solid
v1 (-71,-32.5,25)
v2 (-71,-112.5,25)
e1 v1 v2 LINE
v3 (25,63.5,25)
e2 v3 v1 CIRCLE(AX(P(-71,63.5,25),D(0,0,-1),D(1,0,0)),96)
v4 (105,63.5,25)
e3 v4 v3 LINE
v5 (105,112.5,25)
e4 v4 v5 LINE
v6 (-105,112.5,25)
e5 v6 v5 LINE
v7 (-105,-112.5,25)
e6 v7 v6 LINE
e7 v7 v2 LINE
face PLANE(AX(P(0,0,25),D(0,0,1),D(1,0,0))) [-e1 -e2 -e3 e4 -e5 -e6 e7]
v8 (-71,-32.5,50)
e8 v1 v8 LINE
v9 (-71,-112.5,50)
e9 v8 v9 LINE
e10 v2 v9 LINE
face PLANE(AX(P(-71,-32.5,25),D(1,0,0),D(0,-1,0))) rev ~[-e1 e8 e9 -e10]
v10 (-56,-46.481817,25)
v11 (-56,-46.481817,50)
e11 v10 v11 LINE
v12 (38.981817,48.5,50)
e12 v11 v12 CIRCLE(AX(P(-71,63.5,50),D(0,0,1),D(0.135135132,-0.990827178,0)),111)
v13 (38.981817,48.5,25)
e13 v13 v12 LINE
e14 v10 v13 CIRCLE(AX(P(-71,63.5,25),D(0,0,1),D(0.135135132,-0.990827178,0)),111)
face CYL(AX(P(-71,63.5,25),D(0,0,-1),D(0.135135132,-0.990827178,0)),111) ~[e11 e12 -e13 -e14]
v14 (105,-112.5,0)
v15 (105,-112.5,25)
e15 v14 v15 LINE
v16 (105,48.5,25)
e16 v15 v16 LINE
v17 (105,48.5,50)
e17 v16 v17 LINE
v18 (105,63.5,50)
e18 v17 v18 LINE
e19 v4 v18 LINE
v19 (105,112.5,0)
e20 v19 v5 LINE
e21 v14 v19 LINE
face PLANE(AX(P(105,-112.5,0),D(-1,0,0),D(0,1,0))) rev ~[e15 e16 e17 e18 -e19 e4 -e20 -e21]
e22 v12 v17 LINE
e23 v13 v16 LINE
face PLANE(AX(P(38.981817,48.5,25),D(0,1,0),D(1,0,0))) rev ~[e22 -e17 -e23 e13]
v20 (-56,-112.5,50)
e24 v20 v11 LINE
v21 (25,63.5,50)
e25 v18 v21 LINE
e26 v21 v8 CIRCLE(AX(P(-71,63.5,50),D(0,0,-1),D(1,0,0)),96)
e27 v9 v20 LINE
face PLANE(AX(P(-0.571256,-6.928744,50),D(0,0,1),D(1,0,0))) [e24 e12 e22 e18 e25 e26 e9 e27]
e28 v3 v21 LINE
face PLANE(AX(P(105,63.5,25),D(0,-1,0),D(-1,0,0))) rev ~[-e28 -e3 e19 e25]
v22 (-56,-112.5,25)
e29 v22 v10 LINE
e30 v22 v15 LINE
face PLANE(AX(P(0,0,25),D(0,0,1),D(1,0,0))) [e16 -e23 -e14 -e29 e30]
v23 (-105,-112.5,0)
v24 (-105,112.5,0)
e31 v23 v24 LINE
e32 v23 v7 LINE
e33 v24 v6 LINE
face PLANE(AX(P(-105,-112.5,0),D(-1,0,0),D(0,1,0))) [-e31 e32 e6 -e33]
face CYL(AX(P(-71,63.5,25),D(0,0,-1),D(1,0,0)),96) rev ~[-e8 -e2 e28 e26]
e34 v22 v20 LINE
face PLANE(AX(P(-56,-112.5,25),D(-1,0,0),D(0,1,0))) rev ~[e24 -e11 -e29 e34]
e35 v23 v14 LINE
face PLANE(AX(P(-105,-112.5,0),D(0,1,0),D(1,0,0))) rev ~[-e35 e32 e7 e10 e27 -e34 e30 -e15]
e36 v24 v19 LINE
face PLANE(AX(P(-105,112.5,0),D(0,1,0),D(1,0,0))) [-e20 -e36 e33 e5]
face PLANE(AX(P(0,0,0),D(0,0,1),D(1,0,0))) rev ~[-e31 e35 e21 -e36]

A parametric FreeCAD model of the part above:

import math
import FreeCAD as App
import Part
import Sketcher

V = App.Vector
Q = App.Units.Quantity

doc = App.newDocument("Part")
params = doc.addObject("Spreadsheet::Sheet", "Params")
for row, (alias, value) in enumerate([
    ("sketch1_width", "210 mm"),
    ("sketch1_height", "225 mm"),
    ("pad1_length", "25 mm"),
    ("sketch2_radius", "111 mm"),
    ("sketch2_radius2", "96 mm"),
    ("sketch2_width", "15 mm"),
    ("sketch2_width2", "80 mm"),
    ("pad2_length", "25 mm"),
], start=1):
    params.set(f"A{row}", alias)
    params.set(f"B{row}", "=" + value)
    params.setAlias(f"B{row}", alias)

body = doc.addObject("PartDesign::Body", "Body")

# Sketch on XY plane
sketch1 = body.newObject("Sketcher::SketchObject", "Sketch")
sketch1.AttachmentSupport = (doc.getObject("XY_Plane"), [""])
sketch1.MapMode = "FlatFace"
sketch1.addGeometry([
    Part.LineSegment(V(-105, 112, 0), V(-105, -112, 0)),
    Part.LineSegment(V(-105, -112, 0), V(105, -112, 0)),
    Part.LineSegment(V(105, -112, 0), V(105, 112, 0)),
    Part.LineSegment(V(105, 112, 0), V(-105, 112, 0)),
], False)
sketch1.addConstraint([
    Sketcher.Constraint("Coincident", 0, 2, 1, 1),
    Sketcher.Constraint("Coincident", 1, 2, 2, 1),
    Sketcher.Constraint("Coincident", 2, 2, 3, 1),
    Sketcher.Constraint("Coincident", 3, 2, 0, 1),
    Sketcher.Constraint("Vertical", 0),
    Sketcher.Constraint("Horizontal", 1),
    Sketcher.Constraint("Vertical", 2),
    Sketcher.Constraint("Horizontal", 3),
    Sketcher.Constraint("Symmetric", 0, 2, 2, 2, -1, 1),
    Sketcher.Constraint("DistanceX", 1, 1, 1, 2, Q("210 mm")),
    Sketcher.Constraint("DistanceY", 0, 2, 0, 1, Q("225 mm")),
])
sketch1.setExpression("Constraints[9]", "Params.sketch1_width")
sketch1.setExpression("Constraints[10]", "Params.sketch1_height")
pad1 = body.newObject("PartDesign::Pad", "Pad")
pad1.Profile = sketch1
pad1.setExpression("Length", "Params.pad1_length")

# Sketch on XY plane
sketch2 = body.newObject("Sketcher::SketchObject", "Sketch001")
sketch2.AttachmentSupport = (doc.getObject("XY_Plane"), [""])
sketch2.MapMode = "FlatFace"
sketch2.AttachmentOffset = App.Placement(V(0, 0, 25), App.Rotation())
sketch2.addGeometry([
    Part.LineSegment(V(-71, -32, 0), V(-71, -112, 0)),  # 0
    Part.LineSegment(V(-71, -112, 0), V(-56, -112, 0)),  # 1
    Part.LineSegment(V(-56, -112, 0), V(-56, -46, 0)),  # 2
    Part.ArcOfCircle(Part.Circle(V(-71, 63, 0), V(0, 0, 1), 111), math.radians(-82), math.radians(-8)),  # 3
    Part.LineSegment(V(39, 48, 0), V(105, 48, 0)),  # 4
    Part.LineSegment(V(105, 48, 0), V(105, 64, 0)),  # 5
    Part.LineSegment(V(105, 64, 0), V(25, 64, 0)),  # 6
    Part.ArcOfCircle(Part.Circle(V(-71, 63, 0), V(0, 0, 1), 96), math.radians(-90), math.radians(0)),  # 7
], False)
sketch2.addConstraint([
    Sketcher.Constraint("Coincident", 0, 2, 1, 1),
    Sketcher.Constraint("Coincident", 1, 2, 2, 1),
    Sketcher.Constraint("Coincident", 2, 2, 3, 1),
    Sketcher.Constraint("Coincident", 3, 2, 4, 1),
    Sketcher.Constraint("Coincident", 4, 2, 5, 1),
    Sketcher.Constraint("Coincident", 5, 2, 6, 1),
    Sketcher.Constraint("Coincident", 6, 2, 7, 2),
    Sketcher.Constraint("Coincident", 7, 1, 0, 1),
    Sketcher.Constraint("Vertical", 0),
    Sketcher.Constraint("Horizontal", 1),
    Sketcher.Constraint("Vertical", 2),
    Sketcher.Constraint("Horizontal", 4),
    Sketcher.Constraint("Vertical", 5),
    Sketcher.Constraint("Horizontal", 6),
    Sketcher.Constraint("Coincident", 7, 3, 3, 3),
    Sketcher.Constraint("Horizontal", 7, 3, 5, 2),
    Sketcher.Constraint("Vertical", 7, 3, 0, 2),
    Sketcher.Constraint("Equal", 6, 0),
    Sketcher.Constraint("Equal", 4, 2),
    Sketcher.Constraint("Radius", 3, Q("111 mm")),
    Sketcher.Constraint("Radius", 7, Q("96 mm")),
    Sketcher.Constraint("DistanceX", 1, 1, 1, 2, Q("15 mm")),
    Sketcher.Constraint("DistanceX", 6, 2, 6, 1, Q("80 mm")),
    Sketcher.Constraint("DistanceX", 3, 3, -1, 1, Q("71 mm")),
    Sketcher.Constraint("DistanceY", -1, 1, 3, 3, Q("63.5 mm")),
])
sketch2.setExpression("Constraints[19]", "Params.sketch2_radius")
sketch2.setExpression("Constraints[20]", "Params.sketch2_radius2")
sketch2.setExpression("Constraints[21]", "Params.sketch2_width")
sketch2.setExpression("Constraints[22]", "Params.sketch2_width2")
pad2 = body.newObject("PartDesign::Pad", "Pad001")
pad2.Profile = sketch2
pad2.setExpression("Length", "Params.pad2_length")

doc.recompute()
